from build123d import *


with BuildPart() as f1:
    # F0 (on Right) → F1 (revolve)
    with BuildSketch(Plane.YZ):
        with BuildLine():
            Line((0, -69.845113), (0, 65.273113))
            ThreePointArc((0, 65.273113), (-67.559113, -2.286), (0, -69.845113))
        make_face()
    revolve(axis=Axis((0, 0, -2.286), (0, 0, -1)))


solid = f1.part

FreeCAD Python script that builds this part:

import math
import FreeCAD as App
import Part
import Sketcher

V = App.Vector

doc = App.newDocument("Part")
body = doc.addObject("PartDesign::Body", "Body")

sketch1 = doc.addObject("Sketcher::SketchObject", "Sketch")
body.addObject(sketch1)
sketch1.AttachmentSupport = (doc.YZ_Plane, [""])
sketch1.MapMode = "FlatFace"
sketch1.addGeometry([
    Part.LineSegment(V(0, -69.845113, 0), V(0, 65.273113, 0)),
    Part.ArcOfCircle(Part.Circle(V(0, -2.286, 0), V(0, 0, 1), 67.559113), math.radians(90), math.radians(270)),
], False)
sketch1.addConstraint([
    Sketcher.Constraint("Coincident", 0, 1, 1, 2),
    Sketcher.Constraint("Coincident", 1, 1, 0, 2),
    Sketcher.Constraint("Vertical", 0),
    Sketcher.Constraint("PointOnObject", 1, 3, -2),
    Sketcher.Constraint("PointOnObject", 0, 1, -2),
    Sketcher.Constraint("DistanceY", 1, 3, -1, 1, 2.286),
    Sketcher.Constraint("Radius", 1, 67.559113),
])
revolution = doc.addObject("PartDesign::Revolution", "Revolution")
body.addObject(revolution)
revolution.Profile = sketch1
revolution.ReferenceAxis = (sketch1, ["V_Axis"])
revolution.Angle = 360

doc.recompute()
